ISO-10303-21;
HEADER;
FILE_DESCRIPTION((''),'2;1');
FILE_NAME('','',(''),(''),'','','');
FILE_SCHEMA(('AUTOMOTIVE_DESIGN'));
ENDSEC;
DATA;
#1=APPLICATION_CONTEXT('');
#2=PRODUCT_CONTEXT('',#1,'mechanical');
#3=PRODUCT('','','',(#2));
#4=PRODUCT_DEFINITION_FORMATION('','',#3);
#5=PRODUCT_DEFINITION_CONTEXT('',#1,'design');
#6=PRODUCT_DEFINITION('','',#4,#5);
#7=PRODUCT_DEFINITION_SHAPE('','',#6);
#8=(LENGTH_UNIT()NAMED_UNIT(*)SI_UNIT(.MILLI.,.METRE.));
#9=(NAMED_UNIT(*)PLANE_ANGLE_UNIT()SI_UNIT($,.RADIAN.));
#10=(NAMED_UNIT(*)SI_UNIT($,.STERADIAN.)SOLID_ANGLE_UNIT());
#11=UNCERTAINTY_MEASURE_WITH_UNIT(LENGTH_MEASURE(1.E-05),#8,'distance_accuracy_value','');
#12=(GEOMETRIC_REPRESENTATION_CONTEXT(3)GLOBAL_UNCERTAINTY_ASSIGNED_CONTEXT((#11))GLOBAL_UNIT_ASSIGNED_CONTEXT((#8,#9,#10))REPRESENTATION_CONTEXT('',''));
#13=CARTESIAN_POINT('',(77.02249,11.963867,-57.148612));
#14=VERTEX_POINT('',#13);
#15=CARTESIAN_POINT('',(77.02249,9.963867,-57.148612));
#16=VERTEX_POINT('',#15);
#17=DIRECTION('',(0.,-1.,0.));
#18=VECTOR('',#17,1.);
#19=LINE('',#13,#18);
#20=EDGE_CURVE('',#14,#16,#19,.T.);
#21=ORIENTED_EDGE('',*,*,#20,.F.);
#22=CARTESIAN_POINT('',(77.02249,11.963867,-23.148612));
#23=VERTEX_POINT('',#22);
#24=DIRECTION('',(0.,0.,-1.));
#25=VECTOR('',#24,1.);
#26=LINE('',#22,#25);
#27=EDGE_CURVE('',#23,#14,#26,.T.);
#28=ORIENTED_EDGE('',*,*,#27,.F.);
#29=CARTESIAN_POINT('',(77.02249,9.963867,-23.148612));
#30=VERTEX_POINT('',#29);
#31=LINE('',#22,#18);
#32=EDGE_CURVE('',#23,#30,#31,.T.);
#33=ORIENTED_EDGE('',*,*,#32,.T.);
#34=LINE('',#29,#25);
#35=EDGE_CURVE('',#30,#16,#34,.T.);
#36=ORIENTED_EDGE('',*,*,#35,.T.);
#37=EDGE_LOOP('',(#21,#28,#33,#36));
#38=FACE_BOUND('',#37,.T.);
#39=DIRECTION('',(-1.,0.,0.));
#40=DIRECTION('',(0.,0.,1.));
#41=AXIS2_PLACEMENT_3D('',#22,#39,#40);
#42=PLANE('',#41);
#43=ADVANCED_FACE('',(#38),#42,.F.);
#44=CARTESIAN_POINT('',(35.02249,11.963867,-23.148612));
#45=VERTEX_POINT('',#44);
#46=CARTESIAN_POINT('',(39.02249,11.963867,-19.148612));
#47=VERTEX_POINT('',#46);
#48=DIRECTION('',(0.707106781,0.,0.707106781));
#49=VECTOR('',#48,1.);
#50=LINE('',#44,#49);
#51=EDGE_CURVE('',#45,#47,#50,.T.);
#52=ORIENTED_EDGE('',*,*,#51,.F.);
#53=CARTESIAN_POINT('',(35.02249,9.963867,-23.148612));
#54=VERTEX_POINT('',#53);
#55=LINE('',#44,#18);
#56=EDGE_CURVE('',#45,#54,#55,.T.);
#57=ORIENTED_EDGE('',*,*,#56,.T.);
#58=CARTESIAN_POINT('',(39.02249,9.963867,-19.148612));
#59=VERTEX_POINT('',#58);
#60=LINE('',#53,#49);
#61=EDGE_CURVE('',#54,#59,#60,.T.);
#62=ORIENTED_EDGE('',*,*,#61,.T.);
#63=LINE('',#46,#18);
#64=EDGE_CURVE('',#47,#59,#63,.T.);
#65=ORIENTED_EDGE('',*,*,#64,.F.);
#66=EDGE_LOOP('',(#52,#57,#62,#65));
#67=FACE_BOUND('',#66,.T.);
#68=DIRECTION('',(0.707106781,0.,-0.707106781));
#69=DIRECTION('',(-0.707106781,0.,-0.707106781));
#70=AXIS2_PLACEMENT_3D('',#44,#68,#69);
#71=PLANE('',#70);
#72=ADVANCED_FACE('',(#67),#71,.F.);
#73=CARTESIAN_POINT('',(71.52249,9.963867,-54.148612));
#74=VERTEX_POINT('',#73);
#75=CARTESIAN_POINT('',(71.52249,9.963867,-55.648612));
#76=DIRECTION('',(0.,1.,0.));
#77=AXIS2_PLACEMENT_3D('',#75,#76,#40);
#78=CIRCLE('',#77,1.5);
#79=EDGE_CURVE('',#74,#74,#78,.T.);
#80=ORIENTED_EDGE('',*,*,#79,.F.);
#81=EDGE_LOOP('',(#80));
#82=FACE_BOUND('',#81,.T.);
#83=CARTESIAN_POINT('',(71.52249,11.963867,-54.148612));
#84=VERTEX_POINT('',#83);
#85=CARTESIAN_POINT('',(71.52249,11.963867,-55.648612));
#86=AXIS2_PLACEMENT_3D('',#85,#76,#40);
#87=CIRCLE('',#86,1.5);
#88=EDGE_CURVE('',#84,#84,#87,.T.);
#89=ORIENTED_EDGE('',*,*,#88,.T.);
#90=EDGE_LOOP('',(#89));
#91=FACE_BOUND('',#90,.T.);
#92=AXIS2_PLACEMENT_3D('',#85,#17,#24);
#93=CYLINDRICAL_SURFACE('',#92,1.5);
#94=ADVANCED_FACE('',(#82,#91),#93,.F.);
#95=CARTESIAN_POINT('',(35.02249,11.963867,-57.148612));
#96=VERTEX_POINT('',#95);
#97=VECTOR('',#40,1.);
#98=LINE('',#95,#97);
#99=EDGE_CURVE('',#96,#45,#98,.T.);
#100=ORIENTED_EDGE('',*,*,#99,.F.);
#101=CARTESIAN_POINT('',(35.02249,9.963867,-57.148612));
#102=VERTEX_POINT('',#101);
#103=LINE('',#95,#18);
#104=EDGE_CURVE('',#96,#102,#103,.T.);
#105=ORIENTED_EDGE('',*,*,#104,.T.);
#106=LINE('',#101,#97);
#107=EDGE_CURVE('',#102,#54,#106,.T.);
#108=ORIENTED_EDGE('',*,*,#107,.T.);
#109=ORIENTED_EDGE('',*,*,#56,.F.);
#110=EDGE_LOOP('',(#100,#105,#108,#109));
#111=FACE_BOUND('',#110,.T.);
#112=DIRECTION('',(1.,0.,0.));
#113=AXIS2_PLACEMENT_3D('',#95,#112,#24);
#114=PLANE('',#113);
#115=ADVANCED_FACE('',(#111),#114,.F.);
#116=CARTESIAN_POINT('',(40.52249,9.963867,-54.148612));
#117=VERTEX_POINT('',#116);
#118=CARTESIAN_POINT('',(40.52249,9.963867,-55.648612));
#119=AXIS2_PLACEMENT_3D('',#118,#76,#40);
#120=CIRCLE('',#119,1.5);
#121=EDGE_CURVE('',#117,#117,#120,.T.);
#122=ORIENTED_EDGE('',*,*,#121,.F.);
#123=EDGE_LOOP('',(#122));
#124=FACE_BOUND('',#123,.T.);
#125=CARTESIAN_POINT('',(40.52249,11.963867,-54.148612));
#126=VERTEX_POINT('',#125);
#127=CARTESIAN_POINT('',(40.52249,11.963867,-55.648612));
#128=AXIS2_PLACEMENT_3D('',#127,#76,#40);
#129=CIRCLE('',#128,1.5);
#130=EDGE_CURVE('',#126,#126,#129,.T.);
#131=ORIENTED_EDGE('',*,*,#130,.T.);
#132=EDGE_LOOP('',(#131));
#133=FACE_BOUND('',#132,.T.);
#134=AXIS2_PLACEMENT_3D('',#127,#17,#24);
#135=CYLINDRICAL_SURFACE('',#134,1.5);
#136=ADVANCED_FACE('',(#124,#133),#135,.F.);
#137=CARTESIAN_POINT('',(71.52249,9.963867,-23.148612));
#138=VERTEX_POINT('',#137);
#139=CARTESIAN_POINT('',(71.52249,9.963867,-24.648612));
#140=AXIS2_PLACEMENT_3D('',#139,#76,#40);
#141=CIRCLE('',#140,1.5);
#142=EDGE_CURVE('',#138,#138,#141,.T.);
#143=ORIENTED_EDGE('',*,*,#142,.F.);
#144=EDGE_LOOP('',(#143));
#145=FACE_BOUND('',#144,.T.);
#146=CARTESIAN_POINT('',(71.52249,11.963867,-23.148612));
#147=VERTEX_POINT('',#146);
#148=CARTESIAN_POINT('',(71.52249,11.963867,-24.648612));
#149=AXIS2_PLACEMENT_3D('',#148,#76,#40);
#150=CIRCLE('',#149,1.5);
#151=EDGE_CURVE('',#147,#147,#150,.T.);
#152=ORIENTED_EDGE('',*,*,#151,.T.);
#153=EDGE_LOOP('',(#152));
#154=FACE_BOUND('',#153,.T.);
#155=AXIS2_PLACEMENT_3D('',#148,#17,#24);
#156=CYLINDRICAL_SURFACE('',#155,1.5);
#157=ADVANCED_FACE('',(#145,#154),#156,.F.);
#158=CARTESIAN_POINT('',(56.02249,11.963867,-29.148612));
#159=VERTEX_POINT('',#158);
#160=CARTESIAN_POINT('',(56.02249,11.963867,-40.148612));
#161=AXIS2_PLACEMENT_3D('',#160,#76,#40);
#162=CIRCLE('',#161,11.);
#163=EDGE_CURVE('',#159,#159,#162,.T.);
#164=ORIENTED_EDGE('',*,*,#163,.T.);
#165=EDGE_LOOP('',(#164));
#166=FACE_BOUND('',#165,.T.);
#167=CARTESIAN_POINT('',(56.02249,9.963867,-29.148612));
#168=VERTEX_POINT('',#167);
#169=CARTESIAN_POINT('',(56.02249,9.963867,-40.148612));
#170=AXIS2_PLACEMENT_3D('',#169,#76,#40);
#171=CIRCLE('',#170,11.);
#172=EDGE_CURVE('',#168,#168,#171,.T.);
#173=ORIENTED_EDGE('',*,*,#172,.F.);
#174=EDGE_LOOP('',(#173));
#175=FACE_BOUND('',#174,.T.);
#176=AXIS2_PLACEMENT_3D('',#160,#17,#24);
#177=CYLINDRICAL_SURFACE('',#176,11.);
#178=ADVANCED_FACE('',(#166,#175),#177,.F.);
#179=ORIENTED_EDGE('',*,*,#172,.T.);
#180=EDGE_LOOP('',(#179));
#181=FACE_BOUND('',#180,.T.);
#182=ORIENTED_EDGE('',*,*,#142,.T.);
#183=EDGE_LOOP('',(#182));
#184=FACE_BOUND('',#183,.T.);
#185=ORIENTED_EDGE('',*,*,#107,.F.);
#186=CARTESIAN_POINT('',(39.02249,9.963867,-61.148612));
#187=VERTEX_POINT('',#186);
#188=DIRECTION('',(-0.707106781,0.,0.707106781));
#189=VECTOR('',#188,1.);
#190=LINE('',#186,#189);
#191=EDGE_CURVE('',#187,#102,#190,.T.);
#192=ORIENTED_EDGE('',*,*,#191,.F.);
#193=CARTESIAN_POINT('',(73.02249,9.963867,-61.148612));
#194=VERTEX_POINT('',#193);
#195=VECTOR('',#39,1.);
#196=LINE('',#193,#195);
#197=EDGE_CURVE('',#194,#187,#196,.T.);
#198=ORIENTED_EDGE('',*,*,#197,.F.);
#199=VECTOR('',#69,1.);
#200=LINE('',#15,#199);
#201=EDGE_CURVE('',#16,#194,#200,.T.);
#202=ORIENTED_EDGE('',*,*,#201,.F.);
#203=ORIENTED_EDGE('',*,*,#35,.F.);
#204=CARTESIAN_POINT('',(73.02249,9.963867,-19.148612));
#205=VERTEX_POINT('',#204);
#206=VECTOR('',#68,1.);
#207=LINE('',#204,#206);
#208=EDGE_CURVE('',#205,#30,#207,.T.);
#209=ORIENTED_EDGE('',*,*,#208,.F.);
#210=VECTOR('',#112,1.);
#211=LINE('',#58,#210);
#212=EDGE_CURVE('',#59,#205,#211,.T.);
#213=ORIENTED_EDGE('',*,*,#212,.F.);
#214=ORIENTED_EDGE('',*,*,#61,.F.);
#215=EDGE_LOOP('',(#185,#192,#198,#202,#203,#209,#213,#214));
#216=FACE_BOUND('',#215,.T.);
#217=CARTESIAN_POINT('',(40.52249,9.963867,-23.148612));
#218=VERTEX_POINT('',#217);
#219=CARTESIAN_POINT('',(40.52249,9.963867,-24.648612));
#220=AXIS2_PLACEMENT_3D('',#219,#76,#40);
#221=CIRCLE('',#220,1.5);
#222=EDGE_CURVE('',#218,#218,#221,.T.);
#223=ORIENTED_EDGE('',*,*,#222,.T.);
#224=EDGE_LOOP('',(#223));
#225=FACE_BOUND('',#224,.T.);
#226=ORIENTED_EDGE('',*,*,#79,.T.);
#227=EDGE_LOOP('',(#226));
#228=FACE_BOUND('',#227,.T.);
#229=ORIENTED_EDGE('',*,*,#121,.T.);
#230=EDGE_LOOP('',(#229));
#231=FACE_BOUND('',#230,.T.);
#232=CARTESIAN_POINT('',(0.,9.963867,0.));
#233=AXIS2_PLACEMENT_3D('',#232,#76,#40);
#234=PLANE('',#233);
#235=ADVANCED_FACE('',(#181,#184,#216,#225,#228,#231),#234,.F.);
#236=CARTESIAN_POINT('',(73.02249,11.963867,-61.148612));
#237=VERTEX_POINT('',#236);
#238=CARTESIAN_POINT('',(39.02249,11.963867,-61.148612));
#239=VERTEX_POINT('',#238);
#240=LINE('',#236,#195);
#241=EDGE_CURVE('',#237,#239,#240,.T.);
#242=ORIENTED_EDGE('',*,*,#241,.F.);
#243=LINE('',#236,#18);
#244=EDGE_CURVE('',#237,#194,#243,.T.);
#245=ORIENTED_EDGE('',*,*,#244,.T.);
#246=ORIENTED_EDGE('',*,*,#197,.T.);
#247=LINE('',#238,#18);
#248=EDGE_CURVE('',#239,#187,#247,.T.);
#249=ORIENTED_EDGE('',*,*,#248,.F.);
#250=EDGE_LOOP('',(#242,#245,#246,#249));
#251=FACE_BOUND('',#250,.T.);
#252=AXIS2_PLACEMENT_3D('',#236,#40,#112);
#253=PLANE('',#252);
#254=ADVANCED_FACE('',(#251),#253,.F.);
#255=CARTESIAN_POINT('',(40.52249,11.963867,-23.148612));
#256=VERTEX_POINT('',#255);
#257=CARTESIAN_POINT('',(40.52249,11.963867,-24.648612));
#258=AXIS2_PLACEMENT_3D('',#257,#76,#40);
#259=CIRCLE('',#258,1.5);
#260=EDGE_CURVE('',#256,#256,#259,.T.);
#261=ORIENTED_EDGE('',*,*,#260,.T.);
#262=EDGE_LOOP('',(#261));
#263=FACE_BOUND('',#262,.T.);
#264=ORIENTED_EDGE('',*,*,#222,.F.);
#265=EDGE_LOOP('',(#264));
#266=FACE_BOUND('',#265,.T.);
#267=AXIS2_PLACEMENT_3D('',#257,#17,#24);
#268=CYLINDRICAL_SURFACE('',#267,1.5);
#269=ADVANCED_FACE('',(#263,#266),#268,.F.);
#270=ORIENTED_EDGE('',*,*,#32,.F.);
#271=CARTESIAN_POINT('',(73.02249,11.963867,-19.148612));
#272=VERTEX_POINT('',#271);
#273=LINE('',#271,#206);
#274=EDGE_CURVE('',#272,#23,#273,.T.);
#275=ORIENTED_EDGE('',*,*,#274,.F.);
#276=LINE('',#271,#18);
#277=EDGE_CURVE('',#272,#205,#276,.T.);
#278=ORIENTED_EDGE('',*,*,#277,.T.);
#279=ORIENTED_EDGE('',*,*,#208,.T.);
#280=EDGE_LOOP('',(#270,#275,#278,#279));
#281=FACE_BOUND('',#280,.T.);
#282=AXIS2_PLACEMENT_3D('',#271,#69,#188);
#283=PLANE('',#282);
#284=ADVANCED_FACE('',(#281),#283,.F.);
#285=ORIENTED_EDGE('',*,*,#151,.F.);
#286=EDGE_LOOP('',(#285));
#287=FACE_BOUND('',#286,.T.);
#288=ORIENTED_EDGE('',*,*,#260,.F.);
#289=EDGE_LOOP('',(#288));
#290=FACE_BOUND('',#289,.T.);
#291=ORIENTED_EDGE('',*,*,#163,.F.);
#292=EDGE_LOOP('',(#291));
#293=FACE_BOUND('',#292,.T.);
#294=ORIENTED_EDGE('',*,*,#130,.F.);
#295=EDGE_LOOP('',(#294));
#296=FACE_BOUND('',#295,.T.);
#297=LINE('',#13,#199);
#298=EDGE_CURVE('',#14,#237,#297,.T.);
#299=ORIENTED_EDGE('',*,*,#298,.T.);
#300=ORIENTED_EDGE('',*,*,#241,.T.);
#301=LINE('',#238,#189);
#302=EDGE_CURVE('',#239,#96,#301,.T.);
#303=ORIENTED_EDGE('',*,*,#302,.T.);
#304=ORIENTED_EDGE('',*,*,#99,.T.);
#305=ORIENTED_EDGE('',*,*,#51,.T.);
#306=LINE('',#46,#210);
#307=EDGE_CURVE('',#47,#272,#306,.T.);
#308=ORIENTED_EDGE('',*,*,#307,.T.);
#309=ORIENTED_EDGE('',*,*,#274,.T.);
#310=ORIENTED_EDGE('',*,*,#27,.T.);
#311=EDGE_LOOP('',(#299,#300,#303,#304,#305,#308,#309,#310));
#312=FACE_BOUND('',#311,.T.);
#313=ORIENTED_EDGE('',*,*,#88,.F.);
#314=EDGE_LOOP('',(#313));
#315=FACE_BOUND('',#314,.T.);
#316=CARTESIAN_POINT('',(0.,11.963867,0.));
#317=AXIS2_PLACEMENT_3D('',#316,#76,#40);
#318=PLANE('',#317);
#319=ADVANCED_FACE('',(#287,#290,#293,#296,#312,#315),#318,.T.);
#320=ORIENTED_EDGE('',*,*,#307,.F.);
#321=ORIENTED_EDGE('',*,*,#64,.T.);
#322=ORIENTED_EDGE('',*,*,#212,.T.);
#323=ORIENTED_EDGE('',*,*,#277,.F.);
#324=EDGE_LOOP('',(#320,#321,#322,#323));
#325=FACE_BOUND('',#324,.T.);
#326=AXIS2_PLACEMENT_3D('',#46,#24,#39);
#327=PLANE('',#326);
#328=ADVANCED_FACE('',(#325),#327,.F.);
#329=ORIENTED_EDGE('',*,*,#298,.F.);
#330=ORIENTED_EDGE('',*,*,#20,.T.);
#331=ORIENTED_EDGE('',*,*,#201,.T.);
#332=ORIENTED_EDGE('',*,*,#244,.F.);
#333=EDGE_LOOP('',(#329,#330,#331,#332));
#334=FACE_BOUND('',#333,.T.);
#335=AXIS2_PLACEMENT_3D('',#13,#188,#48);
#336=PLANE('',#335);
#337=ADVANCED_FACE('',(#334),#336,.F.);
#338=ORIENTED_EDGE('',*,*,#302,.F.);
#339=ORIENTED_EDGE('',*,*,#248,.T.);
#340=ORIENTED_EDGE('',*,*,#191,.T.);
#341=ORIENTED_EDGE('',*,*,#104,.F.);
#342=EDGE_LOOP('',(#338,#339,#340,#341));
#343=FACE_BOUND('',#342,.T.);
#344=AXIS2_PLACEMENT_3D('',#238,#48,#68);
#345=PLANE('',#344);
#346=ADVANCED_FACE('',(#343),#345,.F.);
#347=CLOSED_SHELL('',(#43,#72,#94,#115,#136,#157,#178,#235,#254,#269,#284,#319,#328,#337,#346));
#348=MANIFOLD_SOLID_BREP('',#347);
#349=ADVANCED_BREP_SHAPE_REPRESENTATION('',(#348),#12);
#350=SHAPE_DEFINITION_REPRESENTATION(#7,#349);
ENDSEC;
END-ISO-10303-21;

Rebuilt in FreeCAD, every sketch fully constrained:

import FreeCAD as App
import Part
import Sketcher

V = App.Vector

doc = App.newDocument("Part")
body = doc.addObject("PartDesign::Body", "Body")

# Sketch on XZ plane
sketch1 = body.newObject("Sketcher::SketchObject", "Sketch")
sketch1.AttachmentSupport = (doc.getObject("XZ_Plane"), [""])
sketch1.MapMode = "FlatFace"
sketch1.AttachmentOffset = App.Placement(V(0, 0, -9.963867), App.Rotation())
sketch1.addGeometry(Part.LineSegment(V(39.02249, -61.148612, 0), V(35.02249, -57.148612, 0)), False)
sketch1.addGeometry(Part.LineSegment(V(35.02249, -57.148612, 0), V(35.02249, -23.148612, 0)), False)
sketch1.addGeometry(Part.LineSegment(V(35.02249, -23.148612, 0), V(39.02249, -19.148612, 0)), False)
sketch1.addGeometry(Part.LineSegment(V(39.02249, -19.148612, 0), V(73.02249, -19.148612, 0)), False)
sketch1.addGeometry(Part.LineSegment(V(73.02249, -19.148612, 0), V(77.02249, -23.148612, 0)), False)
sketch1.addGeometry(Part.LineSegment(V(77.02249, -23.148612, 0), V(77.02249, -57.148612, 0)), False)
sketch1.addGeometry(Part.LineSegment(V(77.02249, -57.148612, 0), V(73.02249, -61.148612, 0)), False)
sketch1.addGeometry(Part.LineSegment(V(73.02249, -61.148612, 0), V(39.02249, -61.148612, 0)), False)
sketch1.addGeometry(Part.Circle(V(40.52249, -24.648612, 0), V(0, 0, 1), 1.5), False)
sketch1.addGeometry(Part.Circle(V(71.52249, -24.648612, 0), V(0, 0, 1), 1.5), False)
sketch1.addGeometry(Part.Circle(V(40.52249, -55.648612, 0), V(0, 0, 1), 1.5), False)
sketch1.addGeometry(Part.Circle(V(56.02249, -40.148612, 0), V(0, 0, 1), 11), False)
sketch1.addGeometry(Part.Circle(V(71.52249, -55.648612, 0), V(0, 0, 1), 1.5), False)
sketch1.addConstraint(Sketcher.Constraint("Coincident", 0, 2, 1, 1))
sketch1.addConstraint(Sketcher.Constraint("Coincident", 1, 2, 2, 1))
sketch1.addConstraint(Sketcher.Constraint("Coincident", 2, 2, 3, 1))
sketch1.addConstraint(Sketcher.Constraint("Coincident", 3, 2, 4, 1))
sketch1.addConstraint(Sketcher.Constraint("Coincident", 4, 2, 5, 1))
sketch1.addConstraint(Sketcher.Constraint("Coincident", 5, 2, 6, 1))
sketch1.addConstraint(Sketcher.Constraint("Coincident", 6, 2, 7, 1))
sketch1.addConstraint(Sketcher.Constraint("Coincident", 7, 2, 0, 1))
sketch1.addConstraint(Sketcher.Constraint("Vertical", 1))
sketch1.addConstraint(Sketcher.Constraint("Horizontal", 3))
sketch1.addConstraint(Sketcher.Constraint("Vertical", 5))
sketch1.addConstraint(Sketcher.Constraint("Horizontal", 7))
sketch1.addConstraint(Sketcher.Constraint("Equal", 8, 9))
sketch1.addConstraint(Sketcher.Constraint("Equal", 9, 10))
sketch1.addConstraint(Sketcher.Constraint("Equal", 10, 12))
sketch1.addConstraint(Sketcher.Constraint("Perpendicular", 0, 2))
sketch1.addConstraint(Sketcher.Constraint("Perpendicular", 2, 4))
sketch1.addConstraint(Sketcher.Constraint("Perpendicular", 4, 6))
sketch1.addConstraint(Sketcher.Constraint("Horizontal", 8, 3, 9, 3))
sketch1.addConstraint(Sketcher.Constraint("Horizontal", 10, 3, 12, 3))
sketch1.addConstraint(Sketcher.Constraint("Horizontal", 1, 2, 4, 2))
sketch1.addConstraint(Sketcher.Constraint("Horizontal", 0, 2, 5, 2))
sketch1.addConstraint(Sketcher.Constraint("Vertical", 8, 3, 10, 3))
sketch1.addConstraint(Sketcher.Constraint("Vertical", 9, 3, 12, 3))
sketch1.addConstraint(Sketcher.Constraint("Vertical", 3, 2, 6, 2))
sketch1.addConstraint(Sketcher.Constraint("Vertical", 2, 2, 7, 2))
sketch1.addConstraint(Sketcher.Constraint("Equal", 7, 1))
sketch1.addConstraint(Sketcher.Constraint("Diameter", 8, 3.0))
sketch1.addConstraint(Sketcher.Constraint("Diameter", 11, 22.0))
sketch1.addConstraint(Sketcher.Constraint("DistanceX", 3, 1, 3, 2, 34.0))
sketch1.addConstraint(Sketcher.Constraint("DistanceX", 8, 3, 9, 3, 31.0))
sketch1.addConstraint(Sketcher.Constraint("DistanceY", 10, 3, 8, 3, 31.0))
sketch1.addConstraint(Sketcher.Constraint("DistanceX", 0, 2, 11, 3, 21.0))
sketch1.addConstraint(Sketcher.Constraint("DistanceY", 0, 2, 11, 3, 17.0))
sketch1.addConstraint(Sketcher.Constraint("DistanceX", 1, 2, 2, 2, 4.0))
sketch1.addConstraint(Sketcher.Constraint("DistanceX", 8, 3, 11, 3, 15.5))
sketch1.addConstraint(Sketcher.Constraint("DistanceY", 11, 3, 8, 3, 15.5))
sketch1.addConstraint(Sketcher.Constraint("DistanceX", -1, 1, 8, 3, 40.52249))
sketch1.addConstraint(Sketcher.Constraint("DistanceY", 8, 3, -1, 1, 24.648612))
pad1 = body.newObject("PartDesign::Pad", "Pad")
pad1.Profile = sketch1
pad1.Length = 2
pad1.Reversed = True

doc.recompute()
